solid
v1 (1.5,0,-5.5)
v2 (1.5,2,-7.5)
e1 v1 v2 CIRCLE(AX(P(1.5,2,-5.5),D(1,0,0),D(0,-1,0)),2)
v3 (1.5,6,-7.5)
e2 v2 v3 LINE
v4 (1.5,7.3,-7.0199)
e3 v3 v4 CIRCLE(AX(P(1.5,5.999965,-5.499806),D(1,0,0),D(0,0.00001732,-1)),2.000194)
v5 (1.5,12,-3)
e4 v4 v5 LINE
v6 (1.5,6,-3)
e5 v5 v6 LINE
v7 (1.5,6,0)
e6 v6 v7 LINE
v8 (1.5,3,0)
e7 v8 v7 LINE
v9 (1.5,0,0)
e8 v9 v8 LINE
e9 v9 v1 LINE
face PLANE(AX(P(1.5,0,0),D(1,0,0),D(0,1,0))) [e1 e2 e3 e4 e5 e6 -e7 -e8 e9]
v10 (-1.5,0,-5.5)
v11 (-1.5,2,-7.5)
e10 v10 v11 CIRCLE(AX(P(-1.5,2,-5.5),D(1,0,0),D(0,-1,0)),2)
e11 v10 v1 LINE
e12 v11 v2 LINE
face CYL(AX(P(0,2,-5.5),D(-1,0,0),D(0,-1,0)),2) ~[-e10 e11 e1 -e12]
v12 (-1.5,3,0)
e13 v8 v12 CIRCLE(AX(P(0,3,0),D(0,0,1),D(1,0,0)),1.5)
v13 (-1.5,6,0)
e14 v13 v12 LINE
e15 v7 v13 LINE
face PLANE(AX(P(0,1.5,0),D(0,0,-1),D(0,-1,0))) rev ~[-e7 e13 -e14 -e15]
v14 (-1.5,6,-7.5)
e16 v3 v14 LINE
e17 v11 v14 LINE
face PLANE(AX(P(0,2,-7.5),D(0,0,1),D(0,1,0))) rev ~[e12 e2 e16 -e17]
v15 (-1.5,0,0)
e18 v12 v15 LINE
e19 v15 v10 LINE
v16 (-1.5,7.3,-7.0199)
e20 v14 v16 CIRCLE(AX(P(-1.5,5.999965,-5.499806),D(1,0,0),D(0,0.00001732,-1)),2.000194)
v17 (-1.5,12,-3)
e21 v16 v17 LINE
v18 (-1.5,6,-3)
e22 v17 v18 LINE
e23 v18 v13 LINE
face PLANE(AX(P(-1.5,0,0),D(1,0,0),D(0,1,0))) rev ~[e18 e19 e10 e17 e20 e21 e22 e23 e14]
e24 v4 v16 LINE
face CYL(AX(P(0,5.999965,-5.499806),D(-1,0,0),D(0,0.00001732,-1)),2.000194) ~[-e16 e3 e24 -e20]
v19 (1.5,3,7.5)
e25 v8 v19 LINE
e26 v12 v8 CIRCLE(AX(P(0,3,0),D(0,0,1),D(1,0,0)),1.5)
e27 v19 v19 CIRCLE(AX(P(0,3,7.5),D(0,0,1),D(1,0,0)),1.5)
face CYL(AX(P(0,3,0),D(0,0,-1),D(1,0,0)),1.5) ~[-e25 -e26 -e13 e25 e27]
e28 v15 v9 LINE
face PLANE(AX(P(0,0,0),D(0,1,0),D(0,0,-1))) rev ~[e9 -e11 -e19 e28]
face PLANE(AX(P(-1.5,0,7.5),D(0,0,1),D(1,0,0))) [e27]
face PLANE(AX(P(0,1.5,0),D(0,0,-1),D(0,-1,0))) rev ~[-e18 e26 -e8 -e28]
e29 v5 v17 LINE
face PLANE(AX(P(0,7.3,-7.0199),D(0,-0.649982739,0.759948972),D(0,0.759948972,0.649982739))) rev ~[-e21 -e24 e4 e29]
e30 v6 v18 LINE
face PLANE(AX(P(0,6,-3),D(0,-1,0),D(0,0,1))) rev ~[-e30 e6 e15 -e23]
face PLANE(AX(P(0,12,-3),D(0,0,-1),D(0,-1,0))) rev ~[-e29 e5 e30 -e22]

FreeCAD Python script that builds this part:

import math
import FreeCAD as App
import Part
import Sketcher
Q = App.Units.Quantity

doc = App.newDocument("Part")
body = doc.addObject("PartDesign::Body", "Body")

sketch1 = body.newObject("Sketcher::SketchObject", "Sketch")
sketch1.AttachmentSupport = (doc.getObject("YZ_Plane"), [""])
sketch1.MapMode = "FlatFace"
sketch1.addGeometry([
    Part.LineSegment(App.Vector(6, 0, 0), App.Vector(0, 0, 0)),
    Part.LineSegment(App.Vector(0, 0, 0), App.Vector(0, -5.5, 0)),
    Part.ArcOfCircle(Part.Circle(App.Vector(2, -5.5, 0), App.Vector(0, 0, 1), 2), math.radians(180), math.radians(270)),
    Part.LineSegment(App.Vector(2, -7.5, 0), App.Vector(6, -7.5, 0)),
    Part.ArcOfCircle(Part.Circle(App.Vector(6, -5.5, 0), App.Vector(0, 0, 1), 2), math.radians(-90), math.radians(-49)),
    Part.LineSegment(App.Vector(7.3, -7, 0), App.Vector(12, -3, 0)),
    Part.LineSegment(App.Vector(12, -3, 0), App.Vector(6, -3, 0)),
    Part.LineSegment(App.Vector(6, -3, 0), App.Vector(6, 0, 0)),
], False)
sketch1.addConstraint([
    Sketcher.Constraint("Coincident", 0, 2, 1, 1),
    Sketcher.Constraint("Tangent", 1, 2, 2, 1),
    Sketcher.Constraint("Tangent", 2, 2, 3, 1),
    Sketcher.Constraint("Tangent", 3, 2, 4, 1),
    Sketcher.Constraint("Tangent", 4, 2, 5, 1),
    Sketcher.Constraint("Coincident", 5, 2, 6, 1),
    Sketcher.Constraint("Coincident", 6, 2, 7, 1),
    Sketcher.Constraint("Coincident", 7, 2, 0, 1),
    Sketcher.Constraint("Horizontal", 0),
    Sketcher.Constraint("Vertical", 1),
    Sketcher.Constraint("Horizontal", 3),
    Sketcher.Constraint("Horizontal", 6),
    Sketcher.Constraint("Vertical", 7),
    Sketcher.Constraint("Coincident", 0, 2, -1, 1),
    Sketcher.Constraint("Equal", 2, 4),
    Sketcher.Constraint("Vertical", 3, 2, 6, 2),
    Sketcher.Constraint("Equal", 0, 6),
    Sketcher.Constraint("Radius", 2, Q("2 mm")),
    Sketcher.Constraint("DistanceX", 0, 2, 0, 1, Q("6 mm")),
    Sketcher.Constraint("DistanceY", 7, 1, 7, 2, Q("3 mm")),
    Sketcher.Constraint("DistanceY", 2, 2, -1, 1, Q("7.5 mm")),
])
pad1 = body.newObject("PartDesign::Pad", "Pad")
pad1.Profile = sketch1
pad1.Length = 3
pad1.Midplane = True

sketch2 = body.newObject("Sketcher::SketchObject", "Sketch001")
sketch2.AttachmentSupport = (doc.getObject("XY_Plane"), [""])
sketch2.MapMode = "FlatFace"
sketch2.addGeometry(Part.Circle(App.Vector(0, 3, 0), App.Vector(0, 0, 1), 1.5), False)
sketch2.addConstraint([
    Sketcher.Constraint("PointOnObject", 0, 3, -2),
    Sketcher.Constraint("Diameter", 0, Q("3 mm")),
    Sketcher.Constraint("DistanceY", -1, 1, 0, 3, Q("3 mm")),
])
pad2 = body.newObject("PartDesign::Pad", "Pad001")
pad2.Profile = sketch2
pad2.Length = 7.5

doc.recompute()
